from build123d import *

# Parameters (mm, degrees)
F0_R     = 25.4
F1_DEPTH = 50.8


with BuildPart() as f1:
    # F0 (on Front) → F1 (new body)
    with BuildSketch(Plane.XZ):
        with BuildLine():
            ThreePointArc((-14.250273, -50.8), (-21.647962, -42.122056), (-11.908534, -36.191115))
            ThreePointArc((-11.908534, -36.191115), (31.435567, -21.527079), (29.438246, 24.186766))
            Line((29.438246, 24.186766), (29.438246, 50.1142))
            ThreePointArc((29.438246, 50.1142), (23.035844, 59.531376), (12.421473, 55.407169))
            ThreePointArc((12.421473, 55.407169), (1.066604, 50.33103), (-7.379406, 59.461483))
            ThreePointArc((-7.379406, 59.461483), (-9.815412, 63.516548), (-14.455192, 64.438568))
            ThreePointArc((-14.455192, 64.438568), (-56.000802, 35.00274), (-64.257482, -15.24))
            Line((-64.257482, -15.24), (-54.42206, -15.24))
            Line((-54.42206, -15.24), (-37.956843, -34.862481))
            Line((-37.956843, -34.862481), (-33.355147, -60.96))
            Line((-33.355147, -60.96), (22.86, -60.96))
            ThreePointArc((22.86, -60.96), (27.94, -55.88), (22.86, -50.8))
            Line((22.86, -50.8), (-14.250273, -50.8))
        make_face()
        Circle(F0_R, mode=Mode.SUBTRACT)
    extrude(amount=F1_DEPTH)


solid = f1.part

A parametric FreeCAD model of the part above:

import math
import FreeCAD as App
import Part
import Sketcher
Q = App.Units.Quantity

doc = App.newDocument("Part")
body = doc.addObject("PartDesign::Body", "Body")

# Sketch on XZ plane
sketch1 = body.newObject("Sketcher::SketchObject", "Sketch")
sketch1.AttachmentSupport = (doc.getObject("XZ_Plane"), [""])
sketch1.MapMode = "FlatFace"
sketch1.addGeometry([
    Part.ArcOfCircle(Part.Circle(App.Vector(-14, -43, 0), App.Vector(0, 0, 1), 7), math.radians(72), math.radians(270)),  # 0
    Part.ArcOfCircle(Part.Circle(App.Vector(0, 0, 0), App.Vector(0, 0, 1), 38), math.radians(-108), math.radians(39)),  # 1
    Part.LineSegment(App.Vector(29, 24, 0), App.Vector(29, 50, 0)),  # 2
    Part.ArcOfCircle(Part.Circle(App.Vector(20, 51, 0), App.Vector(0, 0, 1), 9), math.radians(-4), math.radians(150)),  # 3
    Part.ArcOfCircle(Part.Circle(App.Vector(3, 61, 0), App.Vector(0, 0, 1), 11), math.radians(-173), math.radians(-30)),  # 4
    Part.ArcOfCircle(Part.Circle(App.Vector(-13, 59, 0), App.Vector(0, 0, 1), 6), math.radians(7), math.radians(103)),  # 5
    Part.ArcOfCircle(Part.Circle(App.Vector(0, 0, 0), App.Vector(0, 0, 1), 66), math.radians(103), math.radians(193)),  # 6
    Part.LineSegment(App.Vector(-64, -15, 0), App.Vector(-54, -15, 0)),  # 7
    Part.LineSegment(App.Vector(-54, -15, 0), App.Vector(-38, -35, 0)),  # 8
    Part.LineSegment(App.Vector(-38, -35, 0), App.Vector(-33, -61, 0)),  # 9
    Part.LineSegment(App.Vector(-33, -61, 0), App.Vector(23, -61, 0)),  # 10
    Part.ArcOfCircle(Part.Circle(App.Vector(23, -56, 0), App.Vector(0, 0, 1), 5), math.radians(-90), math.radians(90)),  # 11
    Part.LineSegment(App.Vector(23, -51, 0), App.Vector(-14, -51, 0)),  # 12
    Part.Circle(App.Vector(0, 0, 0), App.Vector(0, 0, 1), 25),  # 13
], False)
sketch1.addConstraint([
    Sketcher.Constraint("Tangent", 0, 1, 1, 1),
    Sketcher.Constraint("Coincident", 1, 2, 2, 1),
    Sketcher.Constraint("Coincident", 2, 2, 3, 1),
    Sketcher.Constraint("Tangent", 3, 2, 4, 2),
    Sketcher.Constraint("Tangent", 4, 1, 5, 1),
    Sketcher.Constraint("Tangent", 5, 2, 6, 1),
    Sketcher.Constraint("Coincident", 6, 2, 7, 1),
    Sketcher.Constraint("Coincident", 7, 2, 8, 1),
    Sketcher.Constraint("Coincident", 8, 2, 9, 1),
    Sketcher.Constraint("Coincident", 9, 2, 10, 1),
    Sketcher.Constraint("Tangent", 10, 2, 11, 1),
    Sketcher.Constraint("Tangent", 11, 2, 12, 1),
    Sketcher.Constraint("Tangent", 12, 2, 0, 2),
    Sketcher.Constraint("Vertical", 2),
    Sketcher.Constraint("Horizontal", 7),
    Sketcher.Constraint("Horizontal", 10),
    Sketcher.Constraint("Horizontal", 12),
    Sketcher.Constraint("Coincident", 1, 3, -1, 1),
    Sketcher.Constraint("Coincident", 6, 3, -1, 1),
    Sketcher.Constraint("Coincident", 13, 3, -1, 1),
    Sketcher.Constraint("Diameter", 13, Q("2 in")),
    Sketcher.Constraint("Radius", 1, Q("1.5 in")),
    Sketcher.Constraint("Radius", 6, Q("2.6 in")),
    Sketcher.Constraint("Radius", 11, Q("0.2 in")),
    Sketcher.Constraint("Radius", 3, Q("0.36 in")),
    Sketcher.Constraint("Radius", 4, Q("0.42 in")),
    Sketcher.Constraint("Radius", 5, Q("0.23 in")),
    Sketcher.Constraint("DistanceY", -1, 1, 3, 3, Q("2 in")),
    Sketcher.Constraint("DistanceY", 11, 2, -1, 1, Q("2 in")),
    Sketcher.Constraint("Angle", 8, Q("-49.999999 deg")),
    Sketcher.Constraint("Angle", 9, Q("-80.000002 deg")),
    Sketcher.Constraint("DistanceX", -1, 1, 3, 3, Q("0.8 in")),
    Sketcher.Constraint("DistanceX", -1, 1, 11, 3, Q("0.9 in")),
    Sketcher.Constraint("DistanceY", 6, 2, -1, 1, Q("0.6 in")),
    Sketcher.Constraint("DistanceY", 2, 2, 4, 3, Q("0.42 in")),
    Sketcher.Constraint("DistanceY", -1, 1, 4, 3, Q("2.393 in")),
    Sketcher.Constraint("Radius", 0, Q("7.492128 mm")),
    Sketcher.Constraint("DistanceX", 7, 1, 7, 2, Q("9.835422 mm")),
    Sketcher.Constraint("Distance", 8, Q("25.61533 mm")),
])
pad1 = body.newObject("PartDesign::Pad", "Pad")
pad1.Profile = sketch1
pad1.Length = Q("2 in")

doc.recompute()
